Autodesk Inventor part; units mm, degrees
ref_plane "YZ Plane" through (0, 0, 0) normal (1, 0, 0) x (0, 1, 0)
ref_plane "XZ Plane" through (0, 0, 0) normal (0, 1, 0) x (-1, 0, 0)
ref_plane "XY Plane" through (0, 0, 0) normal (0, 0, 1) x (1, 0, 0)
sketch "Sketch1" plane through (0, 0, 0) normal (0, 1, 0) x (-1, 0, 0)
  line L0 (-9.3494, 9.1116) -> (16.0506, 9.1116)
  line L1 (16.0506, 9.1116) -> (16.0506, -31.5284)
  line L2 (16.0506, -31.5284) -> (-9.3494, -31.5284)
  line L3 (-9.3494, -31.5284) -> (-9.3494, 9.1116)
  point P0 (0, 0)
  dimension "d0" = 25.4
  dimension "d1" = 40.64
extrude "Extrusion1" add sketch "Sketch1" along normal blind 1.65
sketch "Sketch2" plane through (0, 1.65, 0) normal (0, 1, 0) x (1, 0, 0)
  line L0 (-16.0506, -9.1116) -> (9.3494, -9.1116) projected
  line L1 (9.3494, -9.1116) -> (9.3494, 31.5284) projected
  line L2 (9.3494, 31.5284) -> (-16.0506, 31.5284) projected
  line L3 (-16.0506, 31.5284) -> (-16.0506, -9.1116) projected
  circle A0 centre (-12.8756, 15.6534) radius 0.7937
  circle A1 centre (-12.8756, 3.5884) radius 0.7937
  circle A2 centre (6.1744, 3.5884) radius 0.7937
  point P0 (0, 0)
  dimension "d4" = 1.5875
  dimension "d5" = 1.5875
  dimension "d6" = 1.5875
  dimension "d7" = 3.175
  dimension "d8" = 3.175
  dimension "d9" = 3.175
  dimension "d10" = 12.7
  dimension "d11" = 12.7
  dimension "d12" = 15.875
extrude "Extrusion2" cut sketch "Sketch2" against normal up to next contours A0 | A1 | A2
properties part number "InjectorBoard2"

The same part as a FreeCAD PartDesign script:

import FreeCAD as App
import Part
import Sketcher
from FreeCAD import Vector
Q = App.Units.Quantity

doc = App.newDocument("Part")
body = doc.addObject("PartDesign::Body", "Body")

# Sketch on XZ plane
sketch1 = doc.addObject("Sketcher::SketchObject", "Sketch")
body.addObject(sketch1)
sketch1.AttachmentSupport = (doc.XZ_Plane, [""])
sketch1.MapMode = "FlatFace"
sketch1.addGeometry(Part.LineSegment(Vector(-16, 9, 0), Vector(9, 9, 0)), False)
sketch1.addGeometry(Part.LineSegment(Vector(9, 9, 0), Vector(9, -32, 0)), False)
sketch1.addGeometry(Part.LineSegment(Vector(9, -32, 0), Vector(-16, -32, 0)), False)
sketch1.addGeometry(Part.LineSegment(Vector(-16, -32, 0), Vector(-16, 9, 0)), False)
sketch1.addConstraint(Sketcher.Constraint("Coincident", 0, 2, 1, 1))
sketch1.addConstraint(Sketcher.Constraint("Coincident", 1, 2, 2, 1))
sketch1.addConstraint(Sketcher.Constraint("Coincident", 2, 2, 3, 1))
sketch1.addConstraint(Sketcher.Constraint("Coincident", 3, 2, 0, 1))
sketch1.addConstraint(Sketcher.Constraint("Horizontal", 0))
sketch1.addConstraint(Sketcher.Constraint("Vertical", 1))
sketch1.addConstraint(Sketcher.Constraint("Horizontal", 2))
sketch1.addConstraint(Sketcher.Constraint("Vertical", 3))
sketch1.addConstraint(Sketcher.Constraint("DistanceX", 0, 1, 0, 2, Q("1 in")))
sketch1.addConstraint(Sketcher.Constraint("DistanceY", 1, 2, 1, 1, Q("1.6 in")))
sketch1.addConstraint(Sketcher.Constraint("DistanceX", -1, 1, 0, 2, Q("9.3494 mm")))
sketch1.addConstraint(Sketcher.Constraint("DistanceY", -1, 1, 0, 2, Q("9.1116 mm")))
pad1 = doc.addObject("PartDesign::Pad", "Pad")
body.addObject(pad1)
pad1.Profile = sketch1
pad1.Length = 1.65
pad1.Reversed = True

# Sketch on XZ plane
sketch2 = doc.addObject("Sketcher::SketchObject", "Sketch001")
body.addObject(sketch2)
sketch2.AttachmentSupport = (doc.XZ_Plane, [""])
sketch2.MapMode = "FlatFace"
sketch2.AttachmentOffset = App.Placement(Vector(0, 0, -1.65), App.Rotation())
sketch2.addGeometry(Part.Circle(Vector(-12.9, -15.7, 0), Vector(0, 0, 1), 0.8), False)
sketch2.addGeometry(Part.Circle(Vector(-12.9, -3.6, 0), Vector(0, 0, 1), 0.8), False)
sketch2.addGeometry(Part.Circle(Vector(6.2, -3.6, 0), Vector(0, 0, 1), 0.8), False)
sketch2.addConstraint(Sketcher.Constraint("Equal", 0, 1))
sketch2.addConstraint(Sketcher.Constraint("Equal", 1, 2))
sketch2.addConstraint(Sketcher.Constraint("Horizontal", 1, 3, 2, 3))
sketch2.addConstraint(Sketcher.Constraint("Vertical", 0, 3, 1, 3))
sketch2.addConstraint(Sketcher.Constraint("Diameter", 0, Q("0.0625 in")))
sketch2.addConstraint(Sketcher.Constraint("DistanceX", 1, 3, 2, 3, Q("0.75 in")))
sketch2.addConstraint(Sketcher.Constraint("DistanceY", 0, 3, 1, 3, Q("0.475 in")))
sketch2.addConstraint(Sketcher.Constraint("DistanceX", 0, 3, -1, 1, Q("12.8756 mm")))
sketch2.addConstraint(Sketcher.Constraint("DistanceY", 0, 3, -1, 1, Q("15.6534 mm")))
pocket1 = doc.addObject("PartDesign::Pocket", "Pocket")
body.addObject(pocket1)
pocket1.Profile = sketch2
pocket1.Type = "UpToFirst"
pocket1.Reversed = True

doc.recompute()
